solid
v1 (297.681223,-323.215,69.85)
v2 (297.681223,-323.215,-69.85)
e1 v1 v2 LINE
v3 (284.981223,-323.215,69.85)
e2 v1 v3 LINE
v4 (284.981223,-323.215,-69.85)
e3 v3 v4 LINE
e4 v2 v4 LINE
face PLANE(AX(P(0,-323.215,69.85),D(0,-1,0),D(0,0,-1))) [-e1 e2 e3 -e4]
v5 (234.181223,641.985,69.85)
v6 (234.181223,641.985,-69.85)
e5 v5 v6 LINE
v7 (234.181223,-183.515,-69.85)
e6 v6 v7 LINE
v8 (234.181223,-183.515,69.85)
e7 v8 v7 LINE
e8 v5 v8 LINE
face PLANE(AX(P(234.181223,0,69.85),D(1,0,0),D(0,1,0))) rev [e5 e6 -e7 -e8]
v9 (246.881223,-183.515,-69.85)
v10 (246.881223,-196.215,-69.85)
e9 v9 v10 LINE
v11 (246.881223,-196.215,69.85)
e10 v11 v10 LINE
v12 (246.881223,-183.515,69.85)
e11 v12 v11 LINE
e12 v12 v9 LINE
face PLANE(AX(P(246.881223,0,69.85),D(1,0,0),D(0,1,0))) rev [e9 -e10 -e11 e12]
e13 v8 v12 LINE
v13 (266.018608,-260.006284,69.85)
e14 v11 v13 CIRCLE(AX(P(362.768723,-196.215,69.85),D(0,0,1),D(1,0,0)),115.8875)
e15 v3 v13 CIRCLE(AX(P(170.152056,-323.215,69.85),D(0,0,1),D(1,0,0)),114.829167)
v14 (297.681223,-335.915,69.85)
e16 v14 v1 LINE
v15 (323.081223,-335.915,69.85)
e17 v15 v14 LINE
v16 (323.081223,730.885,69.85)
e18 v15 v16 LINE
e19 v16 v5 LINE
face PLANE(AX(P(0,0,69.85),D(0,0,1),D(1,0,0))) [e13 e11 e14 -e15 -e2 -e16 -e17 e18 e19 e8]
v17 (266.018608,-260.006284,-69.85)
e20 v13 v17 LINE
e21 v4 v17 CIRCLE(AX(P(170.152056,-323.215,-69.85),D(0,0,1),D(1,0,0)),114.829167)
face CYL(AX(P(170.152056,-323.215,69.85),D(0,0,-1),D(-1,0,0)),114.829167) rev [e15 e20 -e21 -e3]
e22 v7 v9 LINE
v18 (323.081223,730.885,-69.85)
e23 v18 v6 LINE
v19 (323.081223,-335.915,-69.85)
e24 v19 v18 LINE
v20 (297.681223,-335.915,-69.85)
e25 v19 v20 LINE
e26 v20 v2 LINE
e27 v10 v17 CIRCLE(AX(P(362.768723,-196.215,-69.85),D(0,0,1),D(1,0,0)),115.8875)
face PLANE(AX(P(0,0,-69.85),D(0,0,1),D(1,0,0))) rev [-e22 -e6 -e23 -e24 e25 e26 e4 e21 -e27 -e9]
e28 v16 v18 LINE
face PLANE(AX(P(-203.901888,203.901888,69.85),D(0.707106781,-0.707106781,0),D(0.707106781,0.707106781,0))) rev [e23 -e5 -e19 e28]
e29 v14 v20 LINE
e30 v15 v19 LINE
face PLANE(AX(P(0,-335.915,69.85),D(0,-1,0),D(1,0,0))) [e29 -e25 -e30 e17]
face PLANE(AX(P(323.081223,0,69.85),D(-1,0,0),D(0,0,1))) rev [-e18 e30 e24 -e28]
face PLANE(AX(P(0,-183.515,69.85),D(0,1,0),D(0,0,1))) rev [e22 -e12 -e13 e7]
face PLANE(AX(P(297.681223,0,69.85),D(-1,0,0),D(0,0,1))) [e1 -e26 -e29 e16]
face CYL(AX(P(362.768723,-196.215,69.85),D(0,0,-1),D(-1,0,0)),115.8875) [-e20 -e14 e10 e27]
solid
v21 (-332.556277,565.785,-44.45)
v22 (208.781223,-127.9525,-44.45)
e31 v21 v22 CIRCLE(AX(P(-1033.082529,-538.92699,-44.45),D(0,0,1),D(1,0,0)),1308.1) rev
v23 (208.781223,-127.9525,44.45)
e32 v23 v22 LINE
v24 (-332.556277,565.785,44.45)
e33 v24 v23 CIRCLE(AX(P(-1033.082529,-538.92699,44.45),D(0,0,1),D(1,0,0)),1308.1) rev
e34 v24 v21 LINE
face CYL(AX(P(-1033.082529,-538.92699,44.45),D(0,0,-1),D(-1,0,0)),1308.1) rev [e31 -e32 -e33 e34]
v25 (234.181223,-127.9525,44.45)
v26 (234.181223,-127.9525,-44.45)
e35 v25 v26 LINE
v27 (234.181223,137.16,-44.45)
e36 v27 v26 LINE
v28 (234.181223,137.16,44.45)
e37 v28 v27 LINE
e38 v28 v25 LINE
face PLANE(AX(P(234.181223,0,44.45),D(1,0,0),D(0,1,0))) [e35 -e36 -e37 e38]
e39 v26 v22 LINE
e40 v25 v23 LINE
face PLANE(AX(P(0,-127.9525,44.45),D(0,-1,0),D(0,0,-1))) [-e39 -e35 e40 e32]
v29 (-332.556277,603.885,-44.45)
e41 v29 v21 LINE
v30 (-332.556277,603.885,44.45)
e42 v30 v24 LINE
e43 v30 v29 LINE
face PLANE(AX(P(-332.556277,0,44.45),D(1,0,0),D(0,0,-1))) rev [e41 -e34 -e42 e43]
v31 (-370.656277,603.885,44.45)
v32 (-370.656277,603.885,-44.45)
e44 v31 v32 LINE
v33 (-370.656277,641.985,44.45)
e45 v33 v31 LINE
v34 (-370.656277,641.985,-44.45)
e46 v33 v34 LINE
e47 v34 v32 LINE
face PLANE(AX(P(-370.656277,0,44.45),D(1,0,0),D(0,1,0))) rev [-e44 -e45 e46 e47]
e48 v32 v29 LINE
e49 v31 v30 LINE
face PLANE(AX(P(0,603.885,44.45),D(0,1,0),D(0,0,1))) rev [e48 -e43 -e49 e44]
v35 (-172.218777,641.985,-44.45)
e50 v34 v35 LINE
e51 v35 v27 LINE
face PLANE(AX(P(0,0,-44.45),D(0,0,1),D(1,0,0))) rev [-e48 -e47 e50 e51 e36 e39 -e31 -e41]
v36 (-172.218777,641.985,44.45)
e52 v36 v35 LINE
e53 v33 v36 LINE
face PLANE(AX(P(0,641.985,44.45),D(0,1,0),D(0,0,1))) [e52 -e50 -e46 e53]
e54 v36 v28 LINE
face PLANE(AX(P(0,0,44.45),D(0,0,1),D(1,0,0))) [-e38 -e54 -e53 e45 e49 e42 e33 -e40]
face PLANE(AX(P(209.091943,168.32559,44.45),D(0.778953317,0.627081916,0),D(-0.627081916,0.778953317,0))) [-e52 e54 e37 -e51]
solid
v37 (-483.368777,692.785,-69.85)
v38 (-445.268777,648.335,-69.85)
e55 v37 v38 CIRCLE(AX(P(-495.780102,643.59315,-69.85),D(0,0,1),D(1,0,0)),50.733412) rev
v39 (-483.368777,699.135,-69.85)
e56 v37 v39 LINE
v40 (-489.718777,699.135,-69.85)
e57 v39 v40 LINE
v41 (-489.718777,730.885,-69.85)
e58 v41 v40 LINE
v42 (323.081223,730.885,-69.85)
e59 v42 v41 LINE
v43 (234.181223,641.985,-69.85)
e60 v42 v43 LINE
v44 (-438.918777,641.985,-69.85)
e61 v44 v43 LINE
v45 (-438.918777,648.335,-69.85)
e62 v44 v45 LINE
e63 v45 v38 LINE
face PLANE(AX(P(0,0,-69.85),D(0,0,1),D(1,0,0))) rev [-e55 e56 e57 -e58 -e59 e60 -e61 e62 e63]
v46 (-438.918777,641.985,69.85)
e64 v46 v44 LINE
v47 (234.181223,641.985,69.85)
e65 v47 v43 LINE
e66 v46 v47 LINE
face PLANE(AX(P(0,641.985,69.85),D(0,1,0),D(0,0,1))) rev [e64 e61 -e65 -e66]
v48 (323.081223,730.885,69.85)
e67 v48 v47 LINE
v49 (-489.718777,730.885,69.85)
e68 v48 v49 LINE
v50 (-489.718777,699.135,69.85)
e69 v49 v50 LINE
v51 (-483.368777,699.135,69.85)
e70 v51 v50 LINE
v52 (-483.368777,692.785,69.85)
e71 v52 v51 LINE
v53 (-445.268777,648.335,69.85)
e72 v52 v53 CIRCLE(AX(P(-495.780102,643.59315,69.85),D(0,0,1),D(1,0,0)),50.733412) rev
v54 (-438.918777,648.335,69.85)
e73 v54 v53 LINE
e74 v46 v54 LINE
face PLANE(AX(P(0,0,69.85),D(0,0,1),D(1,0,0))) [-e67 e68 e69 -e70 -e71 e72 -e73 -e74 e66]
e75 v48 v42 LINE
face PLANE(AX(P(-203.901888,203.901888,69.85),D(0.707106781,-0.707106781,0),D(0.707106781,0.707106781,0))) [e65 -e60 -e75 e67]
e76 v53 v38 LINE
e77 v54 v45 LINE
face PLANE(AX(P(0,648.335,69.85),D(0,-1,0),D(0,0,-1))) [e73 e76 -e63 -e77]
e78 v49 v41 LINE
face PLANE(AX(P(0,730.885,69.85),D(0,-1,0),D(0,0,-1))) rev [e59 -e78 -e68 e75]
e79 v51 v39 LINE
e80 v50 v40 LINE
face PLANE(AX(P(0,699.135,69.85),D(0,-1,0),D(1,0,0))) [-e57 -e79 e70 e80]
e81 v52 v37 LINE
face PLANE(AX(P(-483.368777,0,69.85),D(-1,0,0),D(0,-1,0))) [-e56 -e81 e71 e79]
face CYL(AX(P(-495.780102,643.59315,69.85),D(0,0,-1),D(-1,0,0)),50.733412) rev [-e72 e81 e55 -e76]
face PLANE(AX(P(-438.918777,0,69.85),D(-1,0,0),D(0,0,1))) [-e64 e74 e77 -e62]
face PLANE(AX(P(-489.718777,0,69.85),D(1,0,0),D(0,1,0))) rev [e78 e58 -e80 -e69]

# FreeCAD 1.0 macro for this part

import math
import FreeCAD as App
import Part
import Sketcher
from FreeCAD import Vector
Q = App.Units.Quantity

doc = App.newDocument("Part")
body = doc.addObject("PartDesign::Body", "Body")

# Sketch on XY plane
sketch1 = body.newObject("Sketcher::SketchObject", "Sketch")
sketch1.AttachmentSupport = (doc.getObject("XY_Plane"), [""])
sketch1.MapMode = "FlatFace"
sketch1.addGeometry([
    Part.LineSegment(Vector(-483, 699, 0), Vector(-483, 693, 0)),  # 0
    Part.ArcOfCircle(Part.Circle(Vector(-496, 644, 0), Vector(0, 0, 1), 51), math.radians(5), math.radians(76)),  # 1
    Part.LineSegment(Vector(-445, 648, 0), Vector(-439, 648, 0)),  # 2
    Part.LineSegment(Vector(-439, 648, 0), Vector(-439, 642, 0)),  # 3
    Part.LineSegment(Vector(-439, 642, 0), Vector(234, 642, 0)),  # 4
    Part.LineSegment(Vector(234, 642, 0), Vector(323, 731, 0)),  # 5
    Part.LineSegment(Vector(323, 731, 0), Vector(-490, 731, 0)),  # 6
    Part.LineSegment(Vector(-490, 731, 0), Vector(-490, 699, 0)),  # 7
    Part.LineSegment(Vector(-490, 699, 0), Vector(-483, 699, 0)),  # 8
], False)
sketch1.addConstraint([
    Sketcher.Constraint("Coincident", 0, 2, 1, 2),
    Sketcher.Constraint("Coincident", 1, 1, 2, 1),
    Sketcher.Constraint("Coincident", 2, 2, 3, 1),
    Sketcher.Constraint("Coincident", 3, 2, 4, 1),
    Sketcher.Constraint("Coincident", 4, 2, 5, 1),
    Sketcher.Constraint("Coincident", 5, 2, 6, 1),
    Sketcher.Constraint("Coincident", 6, 2, 7, 1),
    Sketcher.Constraint("Coincident", 7, 2, 8, 1),
    Sketcher.Constraint("Coincident", 8, 2, 0, 1),
    Sketcher.Constraint("Vertical", 0),
    Sketcher.Constraint("Horizontal", 2),
    Sketcher.Constraint("Vertical", 3),
    Sketcher.Constraint("Horizontal", 4),
    Sketcher.Constraint("Horizontal", 6),
    Sketcher.Constraint("Vertical", 7),
    Sketcher.Constraint("Horizontal", 8),
    Sketcher.Constraint("Equal", 2, 8),
    Sketcher.Constraint("Equal", 8, 0),
    Sketcher.Constraint("Equal", 0, 3),
    Sketcher.Constraint("DistanceX", 6, 2, 6, 1, Q("32 in")),
    Sketcher.Constraint("DistanceX", 4, 1, 4, 2, Q("26.5 in")),
    Sketcher.Constraint("Angle", 5, Q("45 deg")),
    Sketcher.Constraint("DistanceY", 3, 2, 0, 2, Q("2 in")),
    Sketcher.Constraint("DistanceX", 2, 2, 5, 2, Q("30 in")),
    Sketcher.Constraint("DistanceX", 2, 1, 2, 2, Q("0.25 in")),
    Sketcher.Constraint("DistanceY", -1, 1, 0, 2, Q("27.275 in")),
    Sketcher.Constraint("Radius", 1, Q("50.733412 mm")),
    Sketcher.Constraint("DistanceX", 1, 3, -1, 1, Q("495.780102 mm")),
])
pad1 = body.newObject("PartDesign::Pad", "Pad")
pad1.Profile = sketch1
pad1.Length = Q("5.5 in")
pad1.Midplane = True
body2 = doc.addObject("PartDesign::Body", "Body001")

# Sketch on XY plane
sketch2 = body2.newObject("Sketcher::SketchObject", "Sketch001")
sketch2.AttachmentSupport = (doc.getObject("XY_Plane001"), [""])
sketch2.MapMode = "FlatFace"
sketch2.addGeometry([
    Part.LineSegment(Vector(234, 137, 0), Vector(-172, 642, 0)),  # 0
    Part.LineSegment(Vector(-172, 642, 0), Vector(-371, 642, 0)),  # 1
    Part.LineSegment(Vector(-371, 642, 0), Vector(-371, 604, 0)),  # 2
    Part.LineSegment(Vector(-371, 604, 0), Vector(-333, 604, 0)),  # 3
    Part.LineSegment(Vector(-333, 604, 0), Vector(-333, 566, 0)),  # 4
    Part.ArcOfCircle(Part.Circle(Vector(-1033, -539, 0), Vector(0, 0, 1), 1308), math.radians(18), math.radians(58)),  # 5
    Part.LineSegment(Vector(209, -128, 0), Vector(234, -128, 0)),  # 6
    Part.LineSegment(Vector(234, -128, 0), Vector(234, 137, 0)),  # 7
], False)
sketch2.addConstraint([
    Sketcher.Constraint("Coincident", 0, 2, 1, 1),
    Sketcher.Constraint("Coincident", 1, 2, 2, 1),
    Sketcher.Constraint("Coincident", 2, 2, 3, 1),
    Sketcher.Constraint("Coincident", 3, 2, 4, 1),
    Sketcher.Constraint("Coincident", 4, 2, 5, 2),
    Sketcher.Constraint("Coincident", 5, 1, 6, 1),
    Sketcher.Constraint("Coincident", 6, 2, 7, 1),
    Sketcher.Constraint("Coincident", 7, 2, 0, 1),
    Sketcher.Constraint("Horizontal", 1),
    Sketcher.Constraint("Vertical", 2),
    Sketcher.Constraint("Horizontal", 3),
    Sketcher.Constraint("Vertical", 4),
    Sketcher.Constraint("Horizontal", 6),
    Sketcher.Constraint("Vertical", 7),
    Sketcher.Constraint("Equal", 3, 2),
    Sketcher.Constraint("Equal", 2, 4),
    Sketcher.Constraint("Radius", 5, Q("51.5 in")),
    Sketcher.Constraint("DistanceX", 6, 1, 6, 2, Q("1 in")),
    Sketcher.Constraint("DistanceX", 3, 1, 3, 2, Q("1.5 in")),
    Sketcher.Constraint("DistanceX", 0, 2, 6, 2, Q("16 in")),
    Sketcher.Constraint("DistanceY", -1, 1, 7, 2, Q("5.4 in")),
    Sketcher.Constraint("DistanceX", 1, 2, 1, 1, Q("7.8125 in")),
    Sketcher.Constraint("DistanceY", 7, 1, 7, 2, Q("10.4375 in")),
    Sketcher.Constraint("DistanceY", -1, 1, 0, 2, Q("25.275 in")),
    Sketcher.Constraint("DistanceX", 5, 3, -1, 1, Q("1033.082529 mm")),
])
pad2 = body2.newObject("PartDesign::Pad", "Pad001")
pad2.Profile = sketch2
pad2.Length = Q("3.5 in")
pad2.Midplane = True
body3 = doc.addObject("PartDesign::Body", "Body002")

# Sketch on XY plane
sketch3 = body3.newObject("Sketcher::SketchObject", "Sketch002")
sketch3.AttachmentSupport = (doc.getObject("XY_Plane002"), [""])
sketch3.MapMode = "FlatFace"
sketch3.addGeometry([
    Part.LineSegment(Vector(323, -336, 0), Vector(323, 731, 0)),  # 0
    Part.LineSegment(Vector(323, 731, 0), Vector(234, 642, 0)),  # 1
    Part.LineSegment(Vector(234, 642, 0), Vector(234, -184, 0)),  # 2
    Part.LineSegment(Vector(234, -184, 0), Vector(247, -184, 0)),  # 3
    Part.LineSegment(Vector(247, -184, 0), Vector(247, -196, 0)),  # 4
    Part.ArcOfCircle(Part.Circle(Vector(363, -196, 0), Vector(0, 0, 1), 116), math.radians(180), math.radians(213)),  # 5
    Part.ArcOfCircle(Part.Circle(Vector(170, -323, 0), Vector(0, 0, 1), 115), math.radians(0), math.radians(33)),  # 6
    Part.LineSegment(Vector(285, -323, 0), Vector(298, -323, 0)),  # 7
    Part.LineSegment(Vector(298, -323, 0), Vector(298, -336, 0)),  # 8
    Part.LineSegment(Vector(298, -336, 0), Vector(323, -336, 0)),  # 9
], False)
sketch3.addConstraint([
    Sketcher.Constraint("Coincident", 0, 2, 1, 1),
    Sketcher.Constraint("Coincident", 1, 2, 2, 1),
    Sketcher.Constraint("Coincident", 2, 2, 3, 1),
    Sketcher.Constraint("Coincident", 3, 2, 4, 1),
    Sketcher.Constraint("Tangent", 4, 2, 5, 1),
    Sketcher.Constraint("Tangent", 5, 2, 6, 2),
    Sketcher.Constraint("Coincident", 6, 1, 7, 1),
    Sketcher.Constraint("Coincident", 7, 2, 8, 1),
    Sketcher.Constraint("Coincident", 8, 2, 9, 1),
    Sketcher.Constraint("Coincident", 9, 2, 0, 1),
    Sketcher.Constraint("Vertical", 0),
    Sketcher.Constraint("Vertical", 2),
    Sketcher.Constraint("Horizontal", 3),
    Sketcher.Constraint("Vertical", 4),
    Sketcher.Constraint("Horizontal", 7),
    Sketcher.Constraint("Vertical", 8),
    Sketcher.Constraint("Horizontal", 9),
    Sketcher.Constraint("Equal", 3, 7),
    Sketcher.Constraint("Equal", 7, 4),
    Sketcher.Constraint("Equal", 4, 8),
    Sketcher.Constraint("DistanceX", 9, 1, 9, 2, Q("1 in")),
    Sketcher.Constraint("DistanceY", 0, 1, 0, 2, Q("42 in")),
    Sketcher.Constraint("DistanceX", 3, 1, 3, 2, Q("0.5 in")),
    Sketcher.Constraint("DistanceY", 2, 2, 2, 1, Q("32.5 in")),
    Sketcher.Constraint("Angle", 1, Q("-135 deg")),
    Sketcher.Constraint("Radius", 5, Q("4.5625 in")),
    Sketcher.Constraint("DistanceY", 6, 3, 5, 3, Q("5 in")),
    Sketcher.Constraint("DistanceY", 2, 2, 0, 2, Q("36 in")),
    Sketcher.Constraint("DistanceY", 5, 3, -1, 1, Q("7.725 in")),
    Sketcher.Constraint("DistanceX", -1, 1, 6, 3, Q("6.6988999 in")),
])
pad3 = body3.newObject("PartDesign::Pad", "Pad002")
pad3.Profile = sketch3
pad3.Length = Q("5.5 in")
pad3.Midplane = True

doc.recompute()
